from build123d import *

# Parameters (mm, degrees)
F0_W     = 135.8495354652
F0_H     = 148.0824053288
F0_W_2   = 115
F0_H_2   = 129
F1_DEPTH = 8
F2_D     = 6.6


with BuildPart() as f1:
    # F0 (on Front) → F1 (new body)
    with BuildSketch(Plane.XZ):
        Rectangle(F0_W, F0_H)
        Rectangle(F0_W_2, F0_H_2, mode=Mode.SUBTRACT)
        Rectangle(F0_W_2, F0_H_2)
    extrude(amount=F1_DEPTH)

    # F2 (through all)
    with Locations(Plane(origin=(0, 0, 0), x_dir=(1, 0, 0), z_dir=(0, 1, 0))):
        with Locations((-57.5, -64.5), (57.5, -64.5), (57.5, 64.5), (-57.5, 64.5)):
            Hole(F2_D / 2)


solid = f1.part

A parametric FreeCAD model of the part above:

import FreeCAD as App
import Part
import Sketcher

V = App.Vector

doc = App.newDocument("Part")
params = doc.addObject("Spreadsheet::Sheet", "Params")
for row, (alias, value) in enumerate([
    ("pad1_length", "8 mm"),
    ("sketch2_diameter", "6.6 mm"),
    ("hole_diameter", "6.6 mm"),
], start=1):
    params.set(f"A{row}", alias)
    params.set(f"B{row}", "=" + value)
    params.setAlias(f"B{row}", alias)

body = doc.addObject("PartDesign::Body", "Body")

# Sketch on XZ plane
sketch1 = doc.addObject("Sketcher::SketchObject", "Sketch")
body.addObject(sketch1)
sketch1.AttachmentSupport = (doc.XZ_Plane, [""])
sketch1.MapMode = "FlatFace"
sketch1.addGeometry([
    Part.LineSegment(V(-67.924768, 74.041203, 0), V(-67.924768, -74.041203, 0)),
    Part.LineSegment(V(-67.924768, -74.041203, 0), V(67.924768, -74.041203, 0)),
    Part.LineSegment(V(67.924768, -74.041203, 0), V(67.924768, 74.041203, 0)),
    Part.LineSegment(V(67.924768, 74.041203, 0), V(-67.924768, 74.041203, 0)),
], False)
sketch1.addConstraint([
    Sketcher.Constraint("Coincident", 0, 2, 1, 1),
    Sketcher.Constraint("Coincident", 1, 2, 2, 1),
    Sketcher.Constraint("Coincident", 2, 2, 3, 1),
    Sketcher.Constraint("Coincident", 3, 2, 0, 1),
    Sketcher.Constraint("Vertical", 0),
    Sketcher.Constraint("Horizontal", 1),
    Sketcher.Constraint("Vertical", 2),
    Sketcher.Constraint("Horizontal", 3),
    Sketcher.Constraint("Symmetric", 0, 2, 2, 2, -1, 1),
    Sketcher.Constraint("DistanceX", 1, 1, 1, 2, 135.849535),
    Sketcher.Constraint("DistanceY", 0, 2, 0, 1, 148.082405),
])
pad1 = doc.addObject("PartDesign::Pad", "Pad")
body.addObject(pad1)
pad1.Profile = sketch1
pad1.setExpression("Length", "Params.pad1_length")

# Sketch on XZ plane
sketch2 = doc.addObject("Sketcher::SketchObject", "Sketch001")
body.addObject(sketch2)
sketch2.AttachmentSupport = (doc.XZ_Plane, [""])
sketch2.MapMode = "FlatFace"
sketch2.addGeometry([
    Part.Circle(V(-57.5, 64.5, 0), V(0, 0, 1), 3.3),
    Part.Circle(V(57.5, 64.5, 0), V(0, 0, 1), 3.3),
    Part.Circle(V(57.5, -64.5, 0), V(0, 0, 1), 3.3),
    Part.Circle(V(-57.5, -64.5, 0), V(0, 0, 1), 3.3),
], False)
sketch2.addConstraint([
    Sketcher.Constraint("Equal", 0, 1),
    Sketcher.Constraint("Equal", 1, 2),
    Sketcher.Constraint("Equal", 2, 3),
    Sketcher.Constraint("Symmetric", 0, 3, 2, 3, -1, 1),
    Sketcher.Constraint("Symmetric", 1, 3, 3, 3, -1, 1),
    Sketcher.Constraint("Symmetric", 0, 3, 1, 3, -2),
    Sketcher.Constraint("Diameter", 0, 6.6),
    Sketcher.Constraint("DistanceX", 0, 3, 1, 3, 115.0),
    Sketcher.Constraint("DistanceY", 2, 3, 1, 3, 129.0),
])
sketch2.setExpression("Constraints[6]", "Params.sketch2_diameter")
doc.recompute()
hole = doc.addObject("PartDesign::Hole", "Hole")
body.addObject(hole)
hole.Profile = sketch2
hole.ThreadType = "None"
hole.setExpression("Diameter", "Params.hole_diameter")
hole.DepthType = "ThroughAll"
hole.Reversed = True

doc.recompute()
